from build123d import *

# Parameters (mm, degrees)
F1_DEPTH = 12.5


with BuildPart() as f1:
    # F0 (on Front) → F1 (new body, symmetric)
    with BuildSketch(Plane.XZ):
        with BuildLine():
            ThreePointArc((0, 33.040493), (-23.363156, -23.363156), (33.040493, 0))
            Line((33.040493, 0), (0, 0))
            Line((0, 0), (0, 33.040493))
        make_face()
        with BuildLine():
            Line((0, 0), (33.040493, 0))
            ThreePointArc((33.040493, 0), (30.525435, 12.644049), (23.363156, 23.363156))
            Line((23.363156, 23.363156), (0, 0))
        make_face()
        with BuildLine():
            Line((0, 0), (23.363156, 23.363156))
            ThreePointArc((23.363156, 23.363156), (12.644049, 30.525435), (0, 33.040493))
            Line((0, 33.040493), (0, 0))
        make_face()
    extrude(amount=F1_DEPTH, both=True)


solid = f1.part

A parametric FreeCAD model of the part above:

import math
import FreeCAD as App
import Part
import Sketcher
Q = App.Units.Quantity

doc = App.newDocument("Part")
body = doc.addObject("PartDesign::Body", "Body")

sketch1 = body.newObject("Sketcher::SketchObject", "Sketch")
sketch1.AttachmentSupport = (doc.getObject("XZ_Plane"), [""])
sketch1.MapMode = "FlatFace"
sketch1.addGeometry(Part.ArcOfCircle(Part.Circle(App.Vector(0, 0, 0), App.Vector(0, 0, 1), 33), math.radians(90), math.radians(360)), False)
sketch1.addGeometry(Part.ArcOfCircle(Part.Circle(App.Vector(0, 0, 0), App.Vector(0, 0, 1), 33), math.radians(0), math.radians(45)), False)
sketch1.addGeometry(Part.ArcOfCircle(Part.Circle(App.Vector(0, 0, 0), App.Vector(0, 0, 1), 33), math.radians(45), math.radians(90)), False)
sketch1.addConstraint(Sketcher.Constraint("Tangent", 0, 2, 1, 1))
sketch1.addConstraint(Sketcher.Constraint("Tangent", 1, 2, 2, 1))
sketch1.addConstraint(Sketcher.Constraint("Tangent", 2, 2, 0, 1))
sketch1.addConstraint(Sketcher.Constraint("Coincident", 0, 3, -1, 1))
sketch1.addConstraint(Sketcher.Constraint("PointOnObject", 0, 2, -1))
sketch1.addConstraint(Sketcher.Constraint("PointOnObject", 2, 2, -2))
sketch1.addConstraint(Sketcher.Constraint("Radius", 1, Q("33.040491 mm")))
sketch1.addConstraint(Sketcher.Constraint("DistanceX", -1, 1, 1, 2, Q("23.363156 mm")))
pad1 = body.newObject("PartDesign::Pad", "Pad")
pad1.Profile = sketch1
pad1.Length = 25
pad1.Midplane = True

doc.recompute()
